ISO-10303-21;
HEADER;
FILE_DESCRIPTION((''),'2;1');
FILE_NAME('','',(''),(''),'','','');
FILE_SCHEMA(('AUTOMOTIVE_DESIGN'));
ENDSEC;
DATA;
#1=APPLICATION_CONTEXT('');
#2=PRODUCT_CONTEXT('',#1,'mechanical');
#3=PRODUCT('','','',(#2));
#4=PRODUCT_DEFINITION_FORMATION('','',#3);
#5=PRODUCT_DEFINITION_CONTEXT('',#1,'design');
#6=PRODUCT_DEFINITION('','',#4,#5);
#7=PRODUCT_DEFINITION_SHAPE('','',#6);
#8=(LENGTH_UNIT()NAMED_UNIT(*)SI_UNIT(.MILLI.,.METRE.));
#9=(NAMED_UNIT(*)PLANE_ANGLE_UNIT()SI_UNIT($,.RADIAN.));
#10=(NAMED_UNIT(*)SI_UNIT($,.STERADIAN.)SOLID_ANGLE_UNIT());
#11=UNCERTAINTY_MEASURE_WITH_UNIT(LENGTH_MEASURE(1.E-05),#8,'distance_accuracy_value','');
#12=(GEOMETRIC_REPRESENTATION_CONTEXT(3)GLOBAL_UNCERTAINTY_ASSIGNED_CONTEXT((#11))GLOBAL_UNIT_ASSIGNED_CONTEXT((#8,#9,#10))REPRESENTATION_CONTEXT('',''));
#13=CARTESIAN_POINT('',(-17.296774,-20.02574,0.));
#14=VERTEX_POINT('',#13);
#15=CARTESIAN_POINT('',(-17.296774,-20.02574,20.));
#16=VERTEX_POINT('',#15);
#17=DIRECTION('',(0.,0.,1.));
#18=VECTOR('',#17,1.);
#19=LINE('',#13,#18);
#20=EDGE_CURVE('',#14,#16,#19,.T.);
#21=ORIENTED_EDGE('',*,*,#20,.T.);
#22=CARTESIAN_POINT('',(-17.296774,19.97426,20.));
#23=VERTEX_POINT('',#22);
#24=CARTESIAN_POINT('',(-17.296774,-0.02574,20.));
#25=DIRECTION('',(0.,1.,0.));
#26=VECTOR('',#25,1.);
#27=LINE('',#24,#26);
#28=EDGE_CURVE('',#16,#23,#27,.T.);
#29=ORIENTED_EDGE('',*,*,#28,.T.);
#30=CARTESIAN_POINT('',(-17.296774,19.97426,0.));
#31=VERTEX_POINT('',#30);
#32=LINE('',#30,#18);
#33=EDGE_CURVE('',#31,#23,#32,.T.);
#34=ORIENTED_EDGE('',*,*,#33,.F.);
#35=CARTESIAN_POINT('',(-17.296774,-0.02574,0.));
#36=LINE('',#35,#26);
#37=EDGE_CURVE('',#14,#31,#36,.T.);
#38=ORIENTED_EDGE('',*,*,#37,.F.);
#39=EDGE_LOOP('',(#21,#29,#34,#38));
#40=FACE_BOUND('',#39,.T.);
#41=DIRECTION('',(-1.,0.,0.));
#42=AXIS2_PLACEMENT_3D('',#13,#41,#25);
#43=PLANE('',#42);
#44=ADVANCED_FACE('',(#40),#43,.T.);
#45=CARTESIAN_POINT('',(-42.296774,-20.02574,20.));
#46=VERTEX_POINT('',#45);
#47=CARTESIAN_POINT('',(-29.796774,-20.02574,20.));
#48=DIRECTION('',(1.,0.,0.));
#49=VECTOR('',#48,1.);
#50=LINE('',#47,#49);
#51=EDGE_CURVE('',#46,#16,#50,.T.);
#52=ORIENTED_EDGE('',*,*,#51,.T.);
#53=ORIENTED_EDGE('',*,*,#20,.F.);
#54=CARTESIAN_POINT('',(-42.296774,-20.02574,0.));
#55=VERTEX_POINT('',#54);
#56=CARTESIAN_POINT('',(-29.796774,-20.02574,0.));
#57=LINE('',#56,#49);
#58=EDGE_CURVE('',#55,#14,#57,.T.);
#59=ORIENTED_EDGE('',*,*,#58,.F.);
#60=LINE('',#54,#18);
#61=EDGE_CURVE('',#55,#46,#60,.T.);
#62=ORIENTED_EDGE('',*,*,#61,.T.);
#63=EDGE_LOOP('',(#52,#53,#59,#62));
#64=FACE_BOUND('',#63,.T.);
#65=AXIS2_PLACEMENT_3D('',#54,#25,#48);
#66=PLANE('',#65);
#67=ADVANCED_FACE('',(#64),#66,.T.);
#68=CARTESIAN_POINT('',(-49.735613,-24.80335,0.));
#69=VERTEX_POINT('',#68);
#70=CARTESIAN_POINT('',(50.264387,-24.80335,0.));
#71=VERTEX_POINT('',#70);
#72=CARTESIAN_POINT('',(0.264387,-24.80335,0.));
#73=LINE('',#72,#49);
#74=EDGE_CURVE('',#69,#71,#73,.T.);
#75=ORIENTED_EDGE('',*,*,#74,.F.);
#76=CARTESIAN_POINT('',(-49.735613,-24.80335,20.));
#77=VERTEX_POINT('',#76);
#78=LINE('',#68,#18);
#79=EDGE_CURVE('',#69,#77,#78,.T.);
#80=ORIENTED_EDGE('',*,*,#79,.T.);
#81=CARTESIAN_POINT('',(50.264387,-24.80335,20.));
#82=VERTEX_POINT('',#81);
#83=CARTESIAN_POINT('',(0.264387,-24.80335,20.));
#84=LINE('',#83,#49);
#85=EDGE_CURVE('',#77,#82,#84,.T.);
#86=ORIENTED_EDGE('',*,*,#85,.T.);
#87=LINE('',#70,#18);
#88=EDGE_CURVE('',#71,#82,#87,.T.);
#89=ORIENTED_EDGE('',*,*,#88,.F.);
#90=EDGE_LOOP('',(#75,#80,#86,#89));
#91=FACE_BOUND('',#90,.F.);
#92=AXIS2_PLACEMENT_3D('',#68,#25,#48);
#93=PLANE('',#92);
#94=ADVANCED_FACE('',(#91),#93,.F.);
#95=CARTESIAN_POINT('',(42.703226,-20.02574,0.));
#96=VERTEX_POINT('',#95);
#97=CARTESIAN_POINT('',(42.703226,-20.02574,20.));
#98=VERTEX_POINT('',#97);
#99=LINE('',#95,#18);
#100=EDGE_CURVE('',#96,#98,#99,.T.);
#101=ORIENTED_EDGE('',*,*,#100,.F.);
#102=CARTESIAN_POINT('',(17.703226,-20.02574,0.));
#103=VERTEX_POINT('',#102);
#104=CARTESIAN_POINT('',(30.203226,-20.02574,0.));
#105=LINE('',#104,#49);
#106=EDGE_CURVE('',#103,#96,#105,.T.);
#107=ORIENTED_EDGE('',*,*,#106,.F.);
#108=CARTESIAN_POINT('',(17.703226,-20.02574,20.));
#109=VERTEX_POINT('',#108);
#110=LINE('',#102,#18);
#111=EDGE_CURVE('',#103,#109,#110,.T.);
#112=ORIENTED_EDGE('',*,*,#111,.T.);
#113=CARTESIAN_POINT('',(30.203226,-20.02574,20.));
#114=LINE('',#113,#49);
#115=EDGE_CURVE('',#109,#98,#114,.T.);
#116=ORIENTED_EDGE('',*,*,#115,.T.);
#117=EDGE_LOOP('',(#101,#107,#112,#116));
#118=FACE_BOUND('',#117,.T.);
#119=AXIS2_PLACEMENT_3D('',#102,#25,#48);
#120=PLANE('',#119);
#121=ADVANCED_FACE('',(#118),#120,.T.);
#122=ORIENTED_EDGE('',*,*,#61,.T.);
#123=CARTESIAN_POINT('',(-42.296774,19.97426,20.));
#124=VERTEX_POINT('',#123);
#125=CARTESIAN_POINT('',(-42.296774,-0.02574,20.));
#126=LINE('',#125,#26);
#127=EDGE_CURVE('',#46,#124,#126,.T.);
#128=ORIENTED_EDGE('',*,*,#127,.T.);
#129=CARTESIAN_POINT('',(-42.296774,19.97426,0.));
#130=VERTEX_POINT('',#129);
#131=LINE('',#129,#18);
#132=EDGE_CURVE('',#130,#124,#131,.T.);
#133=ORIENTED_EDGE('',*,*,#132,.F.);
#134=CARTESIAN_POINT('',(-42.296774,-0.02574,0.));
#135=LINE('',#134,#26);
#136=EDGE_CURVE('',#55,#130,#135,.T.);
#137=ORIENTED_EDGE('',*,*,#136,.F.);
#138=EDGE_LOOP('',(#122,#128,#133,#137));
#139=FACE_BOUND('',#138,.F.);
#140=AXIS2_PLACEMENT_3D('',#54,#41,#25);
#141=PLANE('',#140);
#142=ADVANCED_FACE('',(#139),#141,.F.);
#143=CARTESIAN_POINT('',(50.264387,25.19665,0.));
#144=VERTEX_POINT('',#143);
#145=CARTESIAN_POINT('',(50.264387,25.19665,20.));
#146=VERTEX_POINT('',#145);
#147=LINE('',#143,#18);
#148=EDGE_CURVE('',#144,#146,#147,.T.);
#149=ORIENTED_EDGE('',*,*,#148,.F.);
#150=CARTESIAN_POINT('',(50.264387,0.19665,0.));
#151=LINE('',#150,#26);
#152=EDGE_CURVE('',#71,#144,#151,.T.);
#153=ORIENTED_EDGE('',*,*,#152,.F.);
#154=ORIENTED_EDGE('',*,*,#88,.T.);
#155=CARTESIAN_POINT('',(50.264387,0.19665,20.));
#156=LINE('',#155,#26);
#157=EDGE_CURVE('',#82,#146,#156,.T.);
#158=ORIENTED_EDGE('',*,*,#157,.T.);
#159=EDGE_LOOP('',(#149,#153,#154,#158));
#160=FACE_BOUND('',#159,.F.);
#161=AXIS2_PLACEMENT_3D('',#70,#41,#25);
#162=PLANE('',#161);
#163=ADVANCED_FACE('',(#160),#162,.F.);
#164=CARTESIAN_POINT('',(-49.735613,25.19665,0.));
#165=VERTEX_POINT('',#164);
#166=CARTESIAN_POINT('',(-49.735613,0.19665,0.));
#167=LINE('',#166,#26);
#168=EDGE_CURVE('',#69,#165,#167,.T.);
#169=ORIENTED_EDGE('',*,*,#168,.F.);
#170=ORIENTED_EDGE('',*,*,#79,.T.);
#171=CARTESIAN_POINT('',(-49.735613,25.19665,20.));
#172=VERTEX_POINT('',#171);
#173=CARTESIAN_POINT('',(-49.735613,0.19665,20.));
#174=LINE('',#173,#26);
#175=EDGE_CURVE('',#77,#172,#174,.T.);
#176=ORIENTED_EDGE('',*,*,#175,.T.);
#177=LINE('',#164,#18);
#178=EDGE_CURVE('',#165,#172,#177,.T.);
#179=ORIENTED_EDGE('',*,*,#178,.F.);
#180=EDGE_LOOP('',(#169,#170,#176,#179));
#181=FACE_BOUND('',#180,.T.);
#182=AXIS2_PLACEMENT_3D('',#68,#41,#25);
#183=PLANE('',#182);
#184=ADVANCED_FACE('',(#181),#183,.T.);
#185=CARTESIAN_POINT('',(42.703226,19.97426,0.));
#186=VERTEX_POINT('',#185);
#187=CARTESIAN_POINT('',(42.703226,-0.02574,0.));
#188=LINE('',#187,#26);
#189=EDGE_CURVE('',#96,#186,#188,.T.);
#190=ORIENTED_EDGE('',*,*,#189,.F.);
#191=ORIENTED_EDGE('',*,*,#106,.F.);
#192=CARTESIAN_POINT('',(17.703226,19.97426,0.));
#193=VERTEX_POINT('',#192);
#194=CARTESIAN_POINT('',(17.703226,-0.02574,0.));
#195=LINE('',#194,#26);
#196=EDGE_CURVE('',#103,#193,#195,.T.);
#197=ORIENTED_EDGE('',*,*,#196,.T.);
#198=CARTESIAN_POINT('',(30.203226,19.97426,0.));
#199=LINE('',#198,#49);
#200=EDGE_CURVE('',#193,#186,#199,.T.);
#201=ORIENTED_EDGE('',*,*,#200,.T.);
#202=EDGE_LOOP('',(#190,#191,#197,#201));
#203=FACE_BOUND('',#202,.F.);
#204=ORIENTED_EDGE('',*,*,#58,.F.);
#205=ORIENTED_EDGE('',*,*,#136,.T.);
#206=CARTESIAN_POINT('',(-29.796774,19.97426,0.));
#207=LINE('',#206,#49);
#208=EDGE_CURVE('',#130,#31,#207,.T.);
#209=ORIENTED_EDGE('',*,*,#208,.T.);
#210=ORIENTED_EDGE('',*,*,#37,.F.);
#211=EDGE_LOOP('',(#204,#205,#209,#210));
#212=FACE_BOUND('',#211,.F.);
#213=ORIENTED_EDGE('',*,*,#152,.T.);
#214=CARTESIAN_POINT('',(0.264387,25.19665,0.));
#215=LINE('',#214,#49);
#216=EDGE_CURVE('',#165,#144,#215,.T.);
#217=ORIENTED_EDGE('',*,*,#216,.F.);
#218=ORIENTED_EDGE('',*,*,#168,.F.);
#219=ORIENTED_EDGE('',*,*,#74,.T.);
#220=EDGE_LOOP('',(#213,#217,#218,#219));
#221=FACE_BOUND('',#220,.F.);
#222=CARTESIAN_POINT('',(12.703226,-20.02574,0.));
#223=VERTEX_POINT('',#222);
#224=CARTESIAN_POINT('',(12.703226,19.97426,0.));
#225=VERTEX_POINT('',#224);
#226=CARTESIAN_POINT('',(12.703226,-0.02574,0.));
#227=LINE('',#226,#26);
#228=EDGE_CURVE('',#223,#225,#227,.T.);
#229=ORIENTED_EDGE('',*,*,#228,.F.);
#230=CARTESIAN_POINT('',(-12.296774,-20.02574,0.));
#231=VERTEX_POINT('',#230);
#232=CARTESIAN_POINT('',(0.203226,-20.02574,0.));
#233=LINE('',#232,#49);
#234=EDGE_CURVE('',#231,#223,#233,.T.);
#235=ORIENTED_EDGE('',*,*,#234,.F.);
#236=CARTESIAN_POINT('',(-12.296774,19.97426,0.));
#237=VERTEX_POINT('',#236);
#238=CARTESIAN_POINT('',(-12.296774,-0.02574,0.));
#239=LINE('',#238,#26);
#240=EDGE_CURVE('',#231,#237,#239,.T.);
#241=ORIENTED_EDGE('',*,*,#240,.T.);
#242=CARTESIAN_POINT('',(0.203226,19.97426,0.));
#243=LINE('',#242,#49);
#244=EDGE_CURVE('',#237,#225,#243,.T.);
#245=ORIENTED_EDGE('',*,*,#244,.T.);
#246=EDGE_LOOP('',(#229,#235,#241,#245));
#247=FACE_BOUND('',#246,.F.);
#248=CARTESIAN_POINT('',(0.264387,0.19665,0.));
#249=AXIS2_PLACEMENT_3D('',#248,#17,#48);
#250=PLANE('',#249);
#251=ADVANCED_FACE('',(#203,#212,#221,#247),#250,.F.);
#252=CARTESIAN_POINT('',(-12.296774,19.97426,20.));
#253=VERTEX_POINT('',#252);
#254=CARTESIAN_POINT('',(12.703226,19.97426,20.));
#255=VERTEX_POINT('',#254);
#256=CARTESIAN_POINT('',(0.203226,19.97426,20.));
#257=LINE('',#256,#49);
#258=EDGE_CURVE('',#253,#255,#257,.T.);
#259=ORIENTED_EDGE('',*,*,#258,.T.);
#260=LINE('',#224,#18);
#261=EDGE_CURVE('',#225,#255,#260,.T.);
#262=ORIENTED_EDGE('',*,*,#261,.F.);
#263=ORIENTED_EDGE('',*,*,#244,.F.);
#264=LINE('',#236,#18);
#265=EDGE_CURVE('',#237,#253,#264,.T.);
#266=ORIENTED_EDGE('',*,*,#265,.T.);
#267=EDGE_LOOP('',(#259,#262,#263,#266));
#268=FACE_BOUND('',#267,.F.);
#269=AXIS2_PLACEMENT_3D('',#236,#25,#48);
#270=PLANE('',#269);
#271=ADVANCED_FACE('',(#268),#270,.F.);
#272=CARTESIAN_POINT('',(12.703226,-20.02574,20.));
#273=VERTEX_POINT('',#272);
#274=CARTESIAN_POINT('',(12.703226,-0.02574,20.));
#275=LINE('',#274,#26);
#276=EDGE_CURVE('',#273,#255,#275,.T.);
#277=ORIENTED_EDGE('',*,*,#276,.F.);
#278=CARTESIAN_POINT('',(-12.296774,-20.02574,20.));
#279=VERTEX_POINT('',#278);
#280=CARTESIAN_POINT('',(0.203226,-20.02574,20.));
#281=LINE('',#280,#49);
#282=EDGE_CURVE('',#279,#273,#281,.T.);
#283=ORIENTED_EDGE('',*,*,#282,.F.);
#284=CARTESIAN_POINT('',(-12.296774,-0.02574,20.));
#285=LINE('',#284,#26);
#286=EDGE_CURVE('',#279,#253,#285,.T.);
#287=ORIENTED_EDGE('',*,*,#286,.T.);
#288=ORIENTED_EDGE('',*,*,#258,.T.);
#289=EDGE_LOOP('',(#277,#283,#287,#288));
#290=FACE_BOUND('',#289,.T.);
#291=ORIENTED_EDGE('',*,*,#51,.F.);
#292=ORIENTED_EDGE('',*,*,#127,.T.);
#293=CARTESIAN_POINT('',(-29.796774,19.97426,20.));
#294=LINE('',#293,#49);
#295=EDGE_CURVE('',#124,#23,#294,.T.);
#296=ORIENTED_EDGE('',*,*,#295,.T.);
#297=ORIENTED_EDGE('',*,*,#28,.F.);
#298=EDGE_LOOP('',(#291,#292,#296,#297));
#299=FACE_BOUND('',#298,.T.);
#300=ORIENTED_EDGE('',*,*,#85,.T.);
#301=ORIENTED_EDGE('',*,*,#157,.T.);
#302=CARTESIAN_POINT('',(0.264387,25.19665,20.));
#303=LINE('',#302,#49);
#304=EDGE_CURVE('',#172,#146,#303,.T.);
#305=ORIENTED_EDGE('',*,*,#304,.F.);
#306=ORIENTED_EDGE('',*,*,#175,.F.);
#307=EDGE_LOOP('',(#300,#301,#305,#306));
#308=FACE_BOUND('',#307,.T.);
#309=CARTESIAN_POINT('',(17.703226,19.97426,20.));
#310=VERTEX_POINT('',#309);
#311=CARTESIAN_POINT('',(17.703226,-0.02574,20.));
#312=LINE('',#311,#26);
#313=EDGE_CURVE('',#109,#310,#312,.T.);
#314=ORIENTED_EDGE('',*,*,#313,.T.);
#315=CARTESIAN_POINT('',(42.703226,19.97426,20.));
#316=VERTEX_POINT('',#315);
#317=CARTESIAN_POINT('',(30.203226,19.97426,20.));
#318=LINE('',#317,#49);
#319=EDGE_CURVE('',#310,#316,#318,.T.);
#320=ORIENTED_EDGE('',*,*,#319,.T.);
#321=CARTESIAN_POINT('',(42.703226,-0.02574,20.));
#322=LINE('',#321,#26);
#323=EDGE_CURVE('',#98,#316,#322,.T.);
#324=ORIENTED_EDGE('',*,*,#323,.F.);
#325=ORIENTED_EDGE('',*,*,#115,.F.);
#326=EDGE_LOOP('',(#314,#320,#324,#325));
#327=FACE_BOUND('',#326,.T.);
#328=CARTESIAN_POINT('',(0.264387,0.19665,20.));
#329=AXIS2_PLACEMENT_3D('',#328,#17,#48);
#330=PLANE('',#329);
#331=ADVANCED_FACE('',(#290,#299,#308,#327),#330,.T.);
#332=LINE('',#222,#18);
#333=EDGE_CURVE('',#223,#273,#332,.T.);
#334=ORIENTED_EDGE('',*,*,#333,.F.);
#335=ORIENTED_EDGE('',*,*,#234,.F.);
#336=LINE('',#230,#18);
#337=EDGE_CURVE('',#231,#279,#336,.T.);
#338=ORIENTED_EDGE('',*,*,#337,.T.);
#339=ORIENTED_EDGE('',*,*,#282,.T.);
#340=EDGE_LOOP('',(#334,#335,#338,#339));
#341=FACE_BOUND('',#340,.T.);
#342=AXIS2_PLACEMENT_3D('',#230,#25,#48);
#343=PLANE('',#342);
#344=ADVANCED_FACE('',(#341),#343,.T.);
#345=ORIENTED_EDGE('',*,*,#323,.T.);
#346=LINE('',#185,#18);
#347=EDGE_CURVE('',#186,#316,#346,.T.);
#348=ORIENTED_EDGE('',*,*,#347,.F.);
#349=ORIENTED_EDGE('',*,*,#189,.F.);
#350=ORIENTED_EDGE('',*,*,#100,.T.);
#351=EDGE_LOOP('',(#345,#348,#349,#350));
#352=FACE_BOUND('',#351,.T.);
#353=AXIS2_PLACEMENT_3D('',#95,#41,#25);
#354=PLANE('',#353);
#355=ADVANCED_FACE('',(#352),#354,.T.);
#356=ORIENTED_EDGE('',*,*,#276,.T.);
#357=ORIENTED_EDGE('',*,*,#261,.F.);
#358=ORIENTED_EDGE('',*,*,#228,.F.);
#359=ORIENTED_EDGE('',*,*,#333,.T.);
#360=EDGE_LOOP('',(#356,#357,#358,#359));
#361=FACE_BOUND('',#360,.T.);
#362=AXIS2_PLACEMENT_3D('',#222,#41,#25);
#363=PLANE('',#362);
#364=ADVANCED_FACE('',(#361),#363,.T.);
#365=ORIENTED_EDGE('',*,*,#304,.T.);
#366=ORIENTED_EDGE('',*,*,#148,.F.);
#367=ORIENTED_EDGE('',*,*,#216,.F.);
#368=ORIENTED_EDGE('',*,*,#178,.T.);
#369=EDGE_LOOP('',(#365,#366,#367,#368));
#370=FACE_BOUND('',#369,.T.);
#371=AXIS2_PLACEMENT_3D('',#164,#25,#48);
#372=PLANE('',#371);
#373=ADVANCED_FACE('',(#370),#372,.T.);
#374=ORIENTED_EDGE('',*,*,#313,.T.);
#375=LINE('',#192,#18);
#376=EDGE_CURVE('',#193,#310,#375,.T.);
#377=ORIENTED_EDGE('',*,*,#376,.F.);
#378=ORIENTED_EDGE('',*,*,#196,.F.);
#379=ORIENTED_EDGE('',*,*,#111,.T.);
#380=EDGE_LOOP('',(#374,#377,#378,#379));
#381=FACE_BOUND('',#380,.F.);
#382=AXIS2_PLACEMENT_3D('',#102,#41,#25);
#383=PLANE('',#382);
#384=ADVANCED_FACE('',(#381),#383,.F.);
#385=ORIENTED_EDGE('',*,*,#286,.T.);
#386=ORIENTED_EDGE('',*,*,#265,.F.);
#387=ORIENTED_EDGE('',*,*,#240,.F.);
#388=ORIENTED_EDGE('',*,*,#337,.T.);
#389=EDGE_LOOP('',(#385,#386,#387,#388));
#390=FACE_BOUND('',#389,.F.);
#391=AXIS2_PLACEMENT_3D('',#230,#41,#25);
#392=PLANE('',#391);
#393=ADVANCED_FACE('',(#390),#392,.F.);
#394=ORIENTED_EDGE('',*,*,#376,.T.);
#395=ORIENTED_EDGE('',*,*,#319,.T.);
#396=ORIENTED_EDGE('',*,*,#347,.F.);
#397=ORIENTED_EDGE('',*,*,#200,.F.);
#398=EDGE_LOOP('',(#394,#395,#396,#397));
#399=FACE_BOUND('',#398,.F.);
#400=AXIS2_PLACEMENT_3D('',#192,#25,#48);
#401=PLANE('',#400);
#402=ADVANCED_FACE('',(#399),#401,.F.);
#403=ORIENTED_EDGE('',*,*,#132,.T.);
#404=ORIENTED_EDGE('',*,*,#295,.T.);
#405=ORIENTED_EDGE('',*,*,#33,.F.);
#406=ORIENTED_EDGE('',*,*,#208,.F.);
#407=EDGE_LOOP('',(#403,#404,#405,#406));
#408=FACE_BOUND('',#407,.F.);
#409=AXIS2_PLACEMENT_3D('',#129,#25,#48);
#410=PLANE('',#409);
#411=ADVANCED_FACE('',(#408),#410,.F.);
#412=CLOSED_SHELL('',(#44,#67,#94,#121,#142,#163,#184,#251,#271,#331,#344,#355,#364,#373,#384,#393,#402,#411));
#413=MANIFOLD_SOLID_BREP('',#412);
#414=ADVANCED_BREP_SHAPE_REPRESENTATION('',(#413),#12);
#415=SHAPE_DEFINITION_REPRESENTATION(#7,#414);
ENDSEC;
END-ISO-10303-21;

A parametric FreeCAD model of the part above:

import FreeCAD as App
import Part
import Sketcher
Q = App.Units.Quantity


def add_polygon(sketch, points):
    """Adds a closed chain of lines whose ends are joined by coincident constraints."""
    first, n = sketch.GeometryCount, len(points)
    for a, b in zip(points, points[1:] + points[:1]):
        sketch.addGeometry(Part.LineSegment(App.Vector(*a, 0), App.Vector(*b, 0)), False)
    for i in range(n):
        sketch.addConstraint(Sketcher.Constraint("Coincident", first + i, 2, first + (i + 1) % n, 1))

doc = App.newDocument("Part")
body = doc.addObject("PartDesign::Body", "Body")

sketch1 = body.newObject("Sketcher::SketchObject", "Sketch")
sketch1.AttachmentSupport = (doc.getObject("XY_Plane"), [""])
sketch1.MapMode = "FlatFace"
add_polygon(sketch1, [(-50, 25), (-50, -25), (50, -25), (50, 25)])
add_polygon(sketch1, [(-17, -20), (-42, -20), (-42, 20), (-17, 20)])
add_polygon(sketch1, [(13, -20), (-12, -20), (-12, 20), (13, 20)])
add_polygon(sketch1, [(43, -20), (18, -20), (18, 20), (43, 20)])
sketch1.addConstraint([
    Sketcher.Constraint("Vertical", 0),
    Sketcher.Constraint("Horizontal", 1),
    Sketcher.Constraint("Vertical", 2),
    Sketcher.Constraint("Horizontal", 3),
    Sketcher.Constraint("Horizontal", 4),
    Sketcher.Constraint("Vertical", 5),
    Sketcher.Constraint("Horizontal", 6),
    Sketcher.Constraint("Vertical", 7),
    Sketcher.Constraint("Horizontal", 8),
    Sketcher.Constraint("Vertical", 9),
    Sketcher.Constraint("Horizontal", 10),
    Sketcher.Constraint("Vertical", 11),
    Sketcher.Constraint("Horizontal", 12),
    Sketcher.Constraint("Vertical", 13),
    Sketcher.Constraint("Horizontal", 14),
    Sketcher.Constraint("Vertical", 15),
    Sketcher.Constraint("Horizontal", 7, 2, 8, 2),
    Sketcher.Constraint("Horizontal", 6, 2, 9, 2),
    Sketcher.Constraint("Horizontal", 11, 2, 12, 2),
    Sketcher.Constraint("Horizontal", 10, 2, 13, 2),
    Sketcher.Constraint("Equal", 6, 8),
    Sketcher.Constraint("Equal", 10, 12),
    Sketcher.Constraint("DistanceX", 1, 1, 1, 2, Q("100 mm")),
    Sketcher.Constraint("DistanceX", 4, 2, 4, 1, Q("25 mm")),
    Sketcher.Constraint("DistanceY", 0, 2, 0, 1, Q("50 mm")),
    Sketcher.Constraint("DistanceY", 5, 1, 5, 2, Q("40 mm")),
    Sketcher.Constraint("DistanceX", 7, 2, 8, 2, Q("5 mm")),
    Sketcher.Constraint("DistanceX", 11, 2, 12, 2, Q("5 mm")),
    Sketcher.Constraint("DistanceY", 0, 2, -1, 1, Q("24.80335 mm")),
    Sketcher.Constraint("DistanceY", 4, 2, -1, 1, Q("20.02574 mm")),
    Sketcher.Constraint("DistanceX", 0, 2, 4, 2, Q("7.438839 mm")),
    Sketcher.Constraint("DistanceX", 0, 2, -1, 1, Q("49.735613 mm")),
])
pad1 = body.newObject("PartDesign::Pad", "Pad")
pad1.Profile = sketch1
pad1.Length = 20

doc.recompute()
